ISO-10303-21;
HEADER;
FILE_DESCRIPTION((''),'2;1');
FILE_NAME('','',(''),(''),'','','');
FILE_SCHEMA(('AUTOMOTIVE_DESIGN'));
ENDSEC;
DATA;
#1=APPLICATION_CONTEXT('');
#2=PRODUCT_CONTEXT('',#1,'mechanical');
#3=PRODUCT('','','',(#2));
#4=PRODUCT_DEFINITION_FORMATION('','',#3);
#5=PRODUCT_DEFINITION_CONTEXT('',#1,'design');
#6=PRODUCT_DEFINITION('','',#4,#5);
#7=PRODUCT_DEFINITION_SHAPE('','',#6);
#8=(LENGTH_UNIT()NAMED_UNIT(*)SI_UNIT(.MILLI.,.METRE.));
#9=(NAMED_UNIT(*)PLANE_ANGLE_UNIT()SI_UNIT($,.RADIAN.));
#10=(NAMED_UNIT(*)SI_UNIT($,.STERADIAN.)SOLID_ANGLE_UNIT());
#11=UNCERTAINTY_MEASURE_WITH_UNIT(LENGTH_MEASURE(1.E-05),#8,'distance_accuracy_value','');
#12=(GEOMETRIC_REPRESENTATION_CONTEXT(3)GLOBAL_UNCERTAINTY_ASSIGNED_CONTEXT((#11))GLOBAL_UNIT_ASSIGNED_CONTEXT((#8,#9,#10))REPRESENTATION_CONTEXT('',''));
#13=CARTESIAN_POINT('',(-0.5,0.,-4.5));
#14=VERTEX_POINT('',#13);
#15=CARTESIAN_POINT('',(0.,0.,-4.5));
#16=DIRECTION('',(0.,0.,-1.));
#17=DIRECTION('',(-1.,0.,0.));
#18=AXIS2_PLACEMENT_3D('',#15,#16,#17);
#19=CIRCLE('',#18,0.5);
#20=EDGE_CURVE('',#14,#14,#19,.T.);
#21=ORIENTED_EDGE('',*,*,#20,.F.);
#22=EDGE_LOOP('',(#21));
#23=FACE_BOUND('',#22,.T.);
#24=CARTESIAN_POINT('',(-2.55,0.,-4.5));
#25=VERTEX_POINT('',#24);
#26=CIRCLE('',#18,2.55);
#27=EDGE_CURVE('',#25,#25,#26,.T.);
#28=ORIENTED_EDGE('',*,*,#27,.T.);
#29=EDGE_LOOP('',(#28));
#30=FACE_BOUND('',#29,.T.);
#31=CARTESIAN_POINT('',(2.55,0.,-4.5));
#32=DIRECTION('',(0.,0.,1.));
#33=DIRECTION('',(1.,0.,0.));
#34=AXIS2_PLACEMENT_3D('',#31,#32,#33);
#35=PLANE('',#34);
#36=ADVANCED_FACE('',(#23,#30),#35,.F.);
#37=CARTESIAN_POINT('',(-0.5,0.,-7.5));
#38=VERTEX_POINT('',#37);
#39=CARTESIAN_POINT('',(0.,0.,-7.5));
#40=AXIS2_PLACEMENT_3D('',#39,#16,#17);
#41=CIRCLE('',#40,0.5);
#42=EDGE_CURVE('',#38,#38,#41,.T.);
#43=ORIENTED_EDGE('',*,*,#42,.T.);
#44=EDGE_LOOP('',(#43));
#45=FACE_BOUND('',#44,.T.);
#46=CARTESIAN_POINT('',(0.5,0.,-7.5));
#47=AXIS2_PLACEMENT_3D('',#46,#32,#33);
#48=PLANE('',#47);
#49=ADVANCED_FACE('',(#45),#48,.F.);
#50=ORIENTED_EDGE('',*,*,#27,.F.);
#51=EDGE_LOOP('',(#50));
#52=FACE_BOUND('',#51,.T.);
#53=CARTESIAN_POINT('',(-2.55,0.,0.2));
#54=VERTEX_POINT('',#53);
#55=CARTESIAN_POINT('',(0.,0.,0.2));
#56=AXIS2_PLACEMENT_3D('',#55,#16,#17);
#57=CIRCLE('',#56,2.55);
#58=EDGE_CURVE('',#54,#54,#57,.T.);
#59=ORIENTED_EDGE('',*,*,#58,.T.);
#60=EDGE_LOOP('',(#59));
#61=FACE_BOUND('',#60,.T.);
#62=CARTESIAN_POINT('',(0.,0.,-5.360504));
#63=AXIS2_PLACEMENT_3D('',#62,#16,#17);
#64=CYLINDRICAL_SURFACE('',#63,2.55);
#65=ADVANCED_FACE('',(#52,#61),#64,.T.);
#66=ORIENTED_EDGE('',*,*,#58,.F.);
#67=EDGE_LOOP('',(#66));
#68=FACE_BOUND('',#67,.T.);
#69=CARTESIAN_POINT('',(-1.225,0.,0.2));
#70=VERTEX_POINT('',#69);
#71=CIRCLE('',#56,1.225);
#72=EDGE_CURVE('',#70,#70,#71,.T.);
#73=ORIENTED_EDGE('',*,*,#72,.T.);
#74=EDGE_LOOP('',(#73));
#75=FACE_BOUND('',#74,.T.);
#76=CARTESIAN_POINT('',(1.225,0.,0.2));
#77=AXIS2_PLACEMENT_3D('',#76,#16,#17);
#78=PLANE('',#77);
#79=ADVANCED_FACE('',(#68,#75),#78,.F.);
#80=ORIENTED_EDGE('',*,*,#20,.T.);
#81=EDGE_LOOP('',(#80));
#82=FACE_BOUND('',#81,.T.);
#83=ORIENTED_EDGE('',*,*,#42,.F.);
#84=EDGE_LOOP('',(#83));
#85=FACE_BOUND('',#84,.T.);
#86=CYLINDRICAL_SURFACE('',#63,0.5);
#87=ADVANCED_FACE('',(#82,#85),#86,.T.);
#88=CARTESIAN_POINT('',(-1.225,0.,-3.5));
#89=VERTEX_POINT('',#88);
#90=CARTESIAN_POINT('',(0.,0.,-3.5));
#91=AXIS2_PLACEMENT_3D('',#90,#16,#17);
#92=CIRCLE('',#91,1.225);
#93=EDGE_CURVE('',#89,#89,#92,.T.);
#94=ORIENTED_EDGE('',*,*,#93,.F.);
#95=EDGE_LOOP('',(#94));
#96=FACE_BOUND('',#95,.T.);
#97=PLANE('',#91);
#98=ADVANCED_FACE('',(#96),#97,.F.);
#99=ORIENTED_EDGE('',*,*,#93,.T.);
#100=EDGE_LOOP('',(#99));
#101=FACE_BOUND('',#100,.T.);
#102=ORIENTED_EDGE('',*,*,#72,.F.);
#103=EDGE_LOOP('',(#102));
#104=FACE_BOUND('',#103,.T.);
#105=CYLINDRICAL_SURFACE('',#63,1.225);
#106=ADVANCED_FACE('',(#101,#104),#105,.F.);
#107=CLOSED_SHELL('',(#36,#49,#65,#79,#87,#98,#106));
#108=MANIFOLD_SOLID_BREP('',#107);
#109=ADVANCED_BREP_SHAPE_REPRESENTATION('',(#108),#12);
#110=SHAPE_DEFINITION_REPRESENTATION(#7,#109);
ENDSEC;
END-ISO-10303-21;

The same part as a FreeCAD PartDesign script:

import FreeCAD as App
import Part
import Sketcher

V = App.Vector
Q = App.Units.Quantity


def add_polygon(sketch, points):
    """Adds a closed chain of lines whose ends are joined by coincident constraints."""
    first, n = sketch.GeometryCount, len(points)
    for a, b in zip(points, points[1:] + points[:1]):
        sketch.addGeometry(Part.LineSegment(App.Vector(*a, 0), App.Vector(*b, 0)), False)
    for i in range(n):
        sketch.addConstraint(Sketcher.Constraint("Coincident", first + i, 2, first + (i + 1) % n, 1))

doc = App.newDocument("Part")
body = doc.addObject("PartDesign::Body", "Body")

sketch1 = body.newObject("Sketcher::SketchObject", "Sketch")
sketch1.AttachmentSupport = (doc.getObject("XZ_Plane"), [""])
sketch1.MapMode = "FlatFace"
add_polygon(sketch1, [(1.225, 0.2), (2.55, 0.2), (2.55, -4.5), (0.5, -4.5), (0.5, -7.5), (0, -7.5), (0, -3.5), (1.225, -3.5)])
sketch1.addConstraint([
    Sketcher.Constraint("Horizontal", 0),
    Sketcher.Constraint("Vertical", 1),
    Sketcher.Constraint("Horizontal", 2),
    Sketcher.Constraint("Vertical", 3),
    Sketcher.Constraint("Horizontal", 4),
    Sketcher.Constraint("Vertical", 5),
    Sketcher.Constraint("Horizontal", 6),
    Sketcher.Constraint("Vertical", 7),
    Sketcher.Constraint("PointOnObject", 4, 2, -2),
    Sketcher.Constraint("DistanceY", 3, 2, 3, 1, Q("3 mm")),
    Sketcher.Constraint("DistanceY", 5, 1, 5, 2, Q("4 mm")),
    Sketcher.Constraint("DistanceX", 4, 2, 4, 1, Q("0.5 mm")),
    Sketcher.Constraint("DistanceY", 1, 2, 1, 1, Q("4.7 mm")),
    Sketcher.Constraint("DistanceX", 2, 2, 2, 1, Q("2.05 mm")),
    Sketcher.Constraint("DistanceY", -1, 1, 0, 2, Q("0.2 mm")),
    Sketcher.Constraint("DistanceX", 0, 1, 0, 2, Q("1.325 mm")),
])
revolution = body.newObject("PartDesign::Revolution", "Revolution")
revolution.Profile = sketch1
revolution.ReferenceAxis = (sketch1, ["V_Axis"])
revolution.Angle = 360

doc.recompute()
